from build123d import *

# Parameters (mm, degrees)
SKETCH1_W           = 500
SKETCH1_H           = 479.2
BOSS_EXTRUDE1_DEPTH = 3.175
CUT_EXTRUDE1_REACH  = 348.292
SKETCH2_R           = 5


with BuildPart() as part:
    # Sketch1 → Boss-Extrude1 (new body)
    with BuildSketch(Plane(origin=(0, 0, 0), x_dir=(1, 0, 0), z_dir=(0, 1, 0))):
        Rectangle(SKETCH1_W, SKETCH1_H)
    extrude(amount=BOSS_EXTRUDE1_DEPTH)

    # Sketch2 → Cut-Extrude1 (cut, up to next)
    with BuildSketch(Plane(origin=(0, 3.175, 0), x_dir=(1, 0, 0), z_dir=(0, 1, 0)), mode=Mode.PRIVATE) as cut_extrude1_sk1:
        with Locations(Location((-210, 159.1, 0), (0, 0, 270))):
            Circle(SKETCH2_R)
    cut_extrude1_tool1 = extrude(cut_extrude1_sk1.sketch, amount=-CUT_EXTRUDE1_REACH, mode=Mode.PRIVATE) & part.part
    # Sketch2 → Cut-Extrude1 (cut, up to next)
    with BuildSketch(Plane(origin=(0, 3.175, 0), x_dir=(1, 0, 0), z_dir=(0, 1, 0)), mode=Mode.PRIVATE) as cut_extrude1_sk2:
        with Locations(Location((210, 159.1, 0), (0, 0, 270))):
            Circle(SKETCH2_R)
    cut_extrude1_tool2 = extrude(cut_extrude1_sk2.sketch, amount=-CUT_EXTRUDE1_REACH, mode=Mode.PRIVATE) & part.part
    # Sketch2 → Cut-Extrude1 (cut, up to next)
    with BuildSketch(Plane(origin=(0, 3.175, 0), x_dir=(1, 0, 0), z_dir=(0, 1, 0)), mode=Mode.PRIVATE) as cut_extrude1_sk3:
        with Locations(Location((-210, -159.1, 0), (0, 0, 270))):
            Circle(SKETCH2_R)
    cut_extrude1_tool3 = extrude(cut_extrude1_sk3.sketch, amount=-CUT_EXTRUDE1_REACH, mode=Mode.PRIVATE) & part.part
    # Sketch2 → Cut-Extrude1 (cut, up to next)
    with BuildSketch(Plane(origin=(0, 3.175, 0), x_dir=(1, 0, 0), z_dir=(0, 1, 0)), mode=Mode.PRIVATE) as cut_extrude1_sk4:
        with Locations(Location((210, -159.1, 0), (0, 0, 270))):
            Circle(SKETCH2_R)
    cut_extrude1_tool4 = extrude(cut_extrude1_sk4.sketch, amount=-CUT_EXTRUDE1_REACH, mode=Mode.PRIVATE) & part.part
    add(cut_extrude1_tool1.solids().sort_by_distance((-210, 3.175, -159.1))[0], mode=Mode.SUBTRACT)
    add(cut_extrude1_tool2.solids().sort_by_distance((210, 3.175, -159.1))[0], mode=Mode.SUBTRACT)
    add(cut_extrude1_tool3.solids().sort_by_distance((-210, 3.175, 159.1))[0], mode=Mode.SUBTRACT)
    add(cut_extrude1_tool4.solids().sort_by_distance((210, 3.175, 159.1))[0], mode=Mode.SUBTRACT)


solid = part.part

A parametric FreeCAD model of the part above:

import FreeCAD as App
import Part
import Sketcher
from FreeCAD import Vector


def add_polygon(sketch, points):
    """Adds a closed chain of lines whose ends are joined by coincident constraints."""
    first, n = sketch.GeometryCount, len(points)
    for a, b in zip(points, points[1:] + points[:1]):
        sketch.addGeometry(Part.LineSegment(App.Vector(*a, 0), App.Vector(*b, 0)), False)
    for i in range(n):
        sketch.addConstraint(Sketcher.Constraint("Coincident", first + i, 2, first + (i + 1) % n, 1))

doc = App.newDocument("Part")
body = doc.addObject("PartDesign::Body", "Body")

# Sketch on XZ plane
sketch1 = doc.addObject("Sketcher::SketchObject", "Sketch")
body.addObject(sketch1)
sketch1.AttachmentSupport = (doc.XZ_Plane, [""])
sketch1.MapMode = "FlatFace"
add_polygon(sketch1, [(-250, -240), (-250, 240), (250, 240), (250, -240)])  # lines 0-3
sketch1.addConstraint(Sketcher.Constraint("Vertical", 0))
sketch1.addConstraint(Sketcher.Constraint("Horizontal", 1))
sketch1.addConstraint(Sketcher.Constraint("Vertical", 2))
sketch1.addConstraint(Sketcher.Constraint("Horizontal", 3))
sketch1.addConstraint(Sketcher.Constraint("Symmetric", 0, 2, 2, 2, -1, 1))
sketch1.addConstraint(Sketcher.Constraint("DistanceX", 1, 1, 1, 2, 500.0))
sketch1.addConstraint(Sketcher.Constraint("DistanceY", 0, 1, 0, 2, 479.2))
pad1 = doc.addObject("PartDesign::Pad", "Pad")
body.addObject(pad1)
pad1.Profile = sketch1
pad1.Length = 3.175
pad1.Reversed = True

# Sketch on XZ plane
sketch2 = doc.addObject("Sketcher::SketchObject", "Sketch001")
body.addObject(sketch2)
sketch2.AttachmentSupport = (doc.XZ_Plane, [""])
sketch2.MapMode = "FlatFace"
sketch2.AttachmentOffset = App.Placement(Vector(0, 0, -3.175), App.Rotation())
sketch2.addGeometry(Part.Circle(Vector(-210, -159, 0), Vector(0, 0, 1), 5), False)
sketch2.addConstraint(Sketcher.Constraint("Diameter", 0, 10.0))
sketch2.addConstraint(Sketcher.Constraint("DistanceX", 0, 3, -1, 1, 210.0))
sketch2.addConstraint(Sketcher.Constraint("DistanceY", 0, 3, -1, 1, 159.1))
pocket1 = doc.addObject("PartDesign::Pocket", "Pocket")
body.addObject(pocket1)
pocket1.Profile = sketch2
pocket1.Type = "UpToFirst"
pocket1.Reversed = True

# Sketch on XZ plane
sketch3 = doc.addObject("Sketcher::SketchObject", "Sketch002")
body.addObject(sketch3)
sketch3.AttachmentSupport = (doc.XZ_Plane, [""])
sketch3.MapMode = "FlatFace"
sketch3.AttachmentOffset = App.Placement(Vector(0, 0, -3.175), App.Rotation())
sketch3.addGeometry(Part.Circle(Vector(210, -159, 0), Vector(0, 0, 1), 5), False)
sketch3.addConstraint(Sketcher.Constraint("Diameter", 0, 10.0))
sketch3.addConstraint(Sketcher.Constraint("DistanceX", -1, 1, 0, 3, 210.0))
sketch3.addConstraint(Sketcher.Constraint("DistanceY", 0, 3, -1, 1, 159.1))
pocket2 = doc.addObject("PartDesign::Pocket", "Pocket001")
body.addObject(pocket2)
pocket2.Profile = sketch3
pocket2.Type = "UpToFirst"
pocket2.Reversed = True

# Sketch on XZ plane
sketch4 = doc.addObject("Sketcher::SketchObject", "Sketch003")
body.addObject(sketch4)
sketch4.AttachmentSupport = (doc.XZ_Plane, [""])
sketch4.MapMode = "FlatFace"
sketch4.AttachmentOffset = App.Placement(Vector(0, 0, -3.175), App.Rotation())
sketch4.addGeometry(Part.Circle(Vector(-210, 159, 0), Vector(0, 0, 1), 5), False)
sketch4.addConstraint(Sketcher.Constraint("Diameter", 0, 10.0))
sketch4.addConstraint(Sketcher.Constraint("DistanceX", 0, 3, -1, 1, 210.0))
sketch4.addConstraint(Sketcher.Constraint("DistanceY", -1, 1, 0, 3, 159.1))
pocket3 = doc.addObject("PartDesign::Pocket", "Pocket002")
body.addObject(pocket3)
pocket3.Profile = sketch4
pocket3.Type = "UpToFirst"
pocket3.Reversed = True

# Sketch on XZ plane
sketch5 = doc.addObject("Sketcher::SketchObject", "Sketch004")
body.addObject(sketch5)
sketch5.AttachmentSupport = (doc.XZ_Plane, [""])
sketch5.MapMode = "FlatFace"
sketch5.AttachmentOffset = App.Placement(Vector(0, 0, -3.175), App.Rotation())
sketch5.addGeometry(Part.Circle(Vector(210, 159, 0), Vector(0, 0, 1), 5), False)
sketch5.addConstraint(Sketcher.Constraint("Diameter", 0, 10.0))
sketch5.addConstraint(Sketcher.Constraint("DistanceX", -1, 1, 0, 3, 210.0))
sketch5.addConstraint(Sketcher.Constraint("DistanceY", -1, 1, 0, 3, 159.1))
pocket4 = doc.addObject("PartDesign::Pocket", "Pocket003")
body.addObject(pocket4)
pocket4.Profile = sketch5
pocket4.Type = "UpToFirst"
pocket4.Reversed = True

doc.recompute()
